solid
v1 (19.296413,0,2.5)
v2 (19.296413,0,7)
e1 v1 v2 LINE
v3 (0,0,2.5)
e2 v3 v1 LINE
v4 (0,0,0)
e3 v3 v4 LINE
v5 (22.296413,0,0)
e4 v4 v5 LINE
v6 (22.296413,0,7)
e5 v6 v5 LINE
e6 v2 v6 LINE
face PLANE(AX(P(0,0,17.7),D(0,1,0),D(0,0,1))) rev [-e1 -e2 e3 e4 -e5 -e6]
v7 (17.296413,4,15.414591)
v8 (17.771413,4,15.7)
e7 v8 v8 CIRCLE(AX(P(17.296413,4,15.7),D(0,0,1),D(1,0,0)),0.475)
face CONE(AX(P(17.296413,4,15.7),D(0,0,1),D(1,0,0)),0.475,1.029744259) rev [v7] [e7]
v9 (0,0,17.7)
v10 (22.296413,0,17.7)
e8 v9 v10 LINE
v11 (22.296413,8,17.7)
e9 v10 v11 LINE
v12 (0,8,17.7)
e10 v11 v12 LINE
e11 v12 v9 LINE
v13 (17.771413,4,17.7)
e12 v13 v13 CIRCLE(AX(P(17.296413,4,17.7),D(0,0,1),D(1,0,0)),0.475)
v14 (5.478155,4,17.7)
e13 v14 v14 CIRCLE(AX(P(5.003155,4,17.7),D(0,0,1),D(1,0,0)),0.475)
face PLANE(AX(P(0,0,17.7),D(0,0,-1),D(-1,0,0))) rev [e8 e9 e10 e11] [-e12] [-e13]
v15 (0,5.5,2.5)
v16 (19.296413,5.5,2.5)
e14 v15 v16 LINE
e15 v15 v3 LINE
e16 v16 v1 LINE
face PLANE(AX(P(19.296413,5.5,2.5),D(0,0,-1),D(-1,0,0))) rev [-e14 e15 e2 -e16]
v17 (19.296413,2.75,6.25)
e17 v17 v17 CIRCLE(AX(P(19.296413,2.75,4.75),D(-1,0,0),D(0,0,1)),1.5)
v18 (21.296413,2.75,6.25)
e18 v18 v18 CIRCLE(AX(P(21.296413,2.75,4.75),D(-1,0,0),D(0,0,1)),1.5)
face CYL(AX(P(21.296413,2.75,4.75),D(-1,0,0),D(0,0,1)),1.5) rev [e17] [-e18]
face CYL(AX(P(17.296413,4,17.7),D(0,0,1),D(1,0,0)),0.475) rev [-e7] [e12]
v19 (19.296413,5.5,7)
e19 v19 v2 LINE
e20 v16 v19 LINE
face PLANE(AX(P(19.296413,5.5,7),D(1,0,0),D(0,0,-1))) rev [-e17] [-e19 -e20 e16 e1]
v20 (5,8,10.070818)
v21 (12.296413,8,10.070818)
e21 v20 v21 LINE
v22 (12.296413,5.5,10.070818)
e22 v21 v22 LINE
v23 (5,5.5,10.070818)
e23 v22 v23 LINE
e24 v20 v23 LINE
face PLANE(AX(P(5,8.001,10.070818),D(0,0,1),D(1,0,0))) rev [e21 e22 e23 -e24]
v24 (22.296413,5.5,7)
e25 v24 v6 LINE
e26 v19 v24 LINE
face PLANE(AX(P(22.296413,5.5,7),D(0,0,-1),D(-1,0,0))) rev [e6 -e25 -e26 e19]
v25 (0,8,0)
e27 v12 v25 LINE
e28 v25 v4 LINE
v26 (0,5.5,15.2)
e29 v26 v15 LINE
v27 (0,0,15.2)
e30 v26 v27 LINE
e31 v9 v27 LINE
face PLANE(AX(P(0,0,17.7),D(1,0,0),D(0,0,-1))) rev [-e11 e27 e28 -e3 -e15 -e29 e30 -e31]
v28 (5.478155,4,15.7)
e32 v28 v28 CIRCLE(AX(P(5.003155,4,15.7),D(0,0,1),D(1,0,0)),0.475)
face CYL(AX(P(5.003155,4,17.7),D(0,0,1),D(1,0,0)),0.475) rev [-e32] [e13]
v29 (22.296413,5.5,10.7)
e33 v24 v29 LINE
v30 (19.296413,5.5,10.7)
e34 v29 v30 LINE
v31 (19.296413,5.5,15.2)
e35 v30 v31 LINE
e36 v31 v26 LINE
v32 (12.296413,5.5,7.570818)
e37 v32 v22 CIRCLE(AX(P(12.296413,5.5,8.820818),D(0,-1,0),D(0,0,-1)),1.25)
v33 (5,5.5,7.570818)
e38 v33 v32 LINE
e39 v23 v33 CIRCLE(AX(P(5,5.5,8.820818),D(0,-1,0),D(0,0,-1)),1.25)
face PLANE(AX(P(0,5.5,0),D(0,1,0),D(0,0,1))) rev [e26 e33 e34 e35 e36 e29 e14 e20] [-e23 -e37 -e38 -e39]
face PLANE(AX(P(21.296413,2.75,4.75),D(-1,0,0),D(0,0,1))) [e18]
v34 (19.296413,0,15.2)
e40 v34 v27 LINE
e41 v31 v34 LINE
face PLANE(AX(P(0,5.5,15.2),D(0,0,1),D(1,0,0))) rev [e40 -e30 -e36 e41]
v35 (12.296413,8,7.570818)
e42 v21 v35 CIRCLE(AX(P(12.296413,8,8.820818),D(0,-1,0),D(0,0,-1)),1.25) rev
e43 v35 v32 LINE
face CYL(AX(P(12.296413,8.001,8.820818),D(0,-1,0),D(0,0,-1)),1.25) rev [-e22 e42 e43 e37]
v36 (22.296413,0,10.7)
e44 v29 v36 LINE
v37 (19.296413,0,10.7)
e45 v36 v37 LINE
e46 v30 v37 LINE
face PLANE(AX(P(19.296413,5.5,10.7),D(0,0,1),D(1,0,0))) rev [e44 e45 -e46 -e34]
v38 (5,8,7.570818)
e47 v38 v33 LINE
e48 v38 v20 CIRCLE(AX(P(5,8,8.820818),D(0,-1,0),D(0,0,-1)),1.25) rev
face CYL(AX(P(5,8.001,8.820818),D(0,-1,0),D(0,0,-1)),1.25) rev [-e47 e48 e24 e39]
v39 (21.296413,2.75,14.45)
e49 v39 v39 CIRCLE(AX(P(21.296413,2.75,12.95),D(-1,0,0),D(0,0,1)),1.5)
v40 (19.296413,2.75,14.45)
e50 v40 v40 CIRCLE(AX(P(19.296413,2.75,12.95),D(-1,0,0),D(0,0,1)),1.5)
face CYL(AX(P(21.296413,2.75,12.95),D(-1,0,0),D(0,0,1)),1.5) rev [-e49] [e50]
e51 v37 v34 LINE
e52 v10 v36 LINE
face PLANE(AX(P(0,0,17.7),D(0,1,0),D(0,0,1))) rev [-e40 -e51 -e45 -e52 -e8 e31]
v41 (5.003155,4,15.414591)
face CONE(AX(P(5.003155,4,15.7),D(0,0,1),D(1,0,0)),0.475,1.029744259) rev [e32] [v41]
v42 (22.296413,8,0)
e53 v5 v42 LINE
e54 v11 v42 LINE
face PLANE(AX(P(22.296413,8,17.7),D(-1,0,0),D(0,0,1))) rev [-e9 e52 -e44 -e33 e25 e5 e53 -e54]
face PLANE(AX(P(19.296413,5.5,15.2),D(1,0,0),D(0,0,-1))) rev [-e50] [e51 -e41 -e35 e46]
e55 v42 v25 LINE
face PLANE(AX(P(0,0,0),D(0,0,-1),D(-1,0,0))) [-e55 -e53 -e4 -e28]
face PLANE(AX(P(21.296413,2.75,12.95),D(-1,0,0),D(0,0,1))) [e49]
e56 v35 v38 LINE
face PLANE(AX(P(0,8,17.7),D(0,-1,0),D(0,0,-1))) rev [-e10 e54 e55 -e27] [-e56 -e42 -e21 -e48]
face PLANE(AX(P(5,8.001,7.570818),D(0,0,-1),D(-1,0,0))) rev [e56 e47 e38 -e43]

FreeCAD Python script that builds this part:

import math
import FreeCAD as App
import Part
import Sketcher

doc = App.newDocument("Part")
params = doc.addObject("Spreadsheet::Sheet", "Params")
for row, (alias, value) in enumerate([
    ("sketch1_height", "8 mm"),
    ("pad1_length", "17.7 mm"),
    ("sketch2_width", "3 mm"),
    ("sketch2_height", "12.7 mm"),
    ("sketch2_height2", "4.5 mm"),
    ("pocket1_length", "5.5 mm"),
    ("sketch3_radius", "1.25 mm"),
    ("sketch4_diameter", "3 mm"),
    ("pocket3_length", "2 mm"),
    ("sketch5_diameter", "0.95 mm"),
    ("hole_diameter", "0.95 mm"),
    ("hole_depth", "2 mm"),
], start=1):
    params.set(f"A{row}", alias)
    params.set(f"B{row}", "=" + value)
    params.setAlias(f"B{row}", alias)

body = doc.addObject("PartDesign::Body", "Body")

# Sketch on XY plane
sketch1 = body.newObject("Sketcher::SketchObject", "Sketch")
sketch1.AttachmentSupport = (doc.getObject("XY_Plane"), [""])
sketch1.MapMode = "FlatFace"
sketch1.addGeometry([
    Part.LineSegment(App.Vector(0, 8, 0), App.Vector(0, 0, 0)),
    Part.LineSegment(App.Vector(0, 0, 0), App.Vector(22, 0, 0)),
    Part.LineSegment(App.Vector(22, 0, 0), App.Vector(22, 8, 0)),
    Part.LineSegment(App.Vector(22, 8, 0), App.Vector(0, 8, 0)),
], False)
sketch1.addConstraint([
    Sketcher.Constraint("Coincident", 0, 2, 1, 1),
    Sketcher.Constraint("Coincident", 1, 2, 2, 1),
    Sketcher.Constraint("Coincident", 2, 2, 3, 1),
    Sketcher.Constraint("Coincident", 3, 2, 0, 1),
    Sketcher.Constraint("Vertical", 0),
    Sketcher.Constraint("Horizontal", 1),
    Sketcher.Constraint("Vertical", 2),
    Sketcher.Constraint("Horizontal", 3),
    Sketcher.Constraint("Coincident", 0, 2, -1, 1),
    Sketcher.Constraint("DistanceY", 0, 2, 0, 1, 8.0),
    Sketcher.Constraint("DistanceX", 1, 1, 1, 2, 22.296413),
])
sketch1.setExpression("Constraints[9]", "Params.sketch1_height")
pad1 = body.newObject("PartDesign::Pad", "Pad")
pad1.Profile = sketch1
pad1.setExpression("Length", "Params.pad1_length")

# Sketch on XZ plane
sketch2 = body.newObject("Sketcher::SketchObject", "Sketch001")
sketch2.AttachmentSupport = (doc.getObject("XZ_Plane"), [""])
sketch2.MapMode = "FlatFace"
sketch2.addGeometry([
    Part.LineSegment(App.Vector(19.3, 15.2, 0), App.Vector(0, 15.2, 0)),  # 0
    Part.LineSegment(App.Vector(0, 15.2, 0), App.Vector(0, 2.5, 0)),  # 1
    Part.LineSegment(App.Vector(0, 2.5, 0), App.Vector(19.3, 2.5, 0)),  # 2
    Part.LineSegment(App.Vector(19.3, 2.5, 0), App.Vector(19.3, 7, 0)),  # 3
    Part.LineSegment(App.Vector(19.3, 7, 0), App.Vector(22.3, 7, 0)),  # 4
    Part.LineSegment(App.Vector(22.3, 7, 0), App.Vector(22.3, 10.7, 0)),  # 5
    Part.LineSegment(App.Vector(22.3, 10.7, 0), App.Vector(19.3, 10.7, 0)),  # 6
    Part.LineSegment(App.Vector(19.3, 10.7, 0), App.Vector(19.3, 15.2, 0)),  # 7
], False)
sketch2.addConstraint([
    Sketcher.Constraint("Coincident", 0, 2, 1, 1),
    Sketcher.Constraint("Coincident", 1, 2, 2, 1),
    Sketcher.Constraint("Coincident", 2, 2, 3, 1),
    Sketcher.Constraint("Coincident", 3, 2, 4, 1),
    Sketcher.Constraint("Coincident", 4, 2, 5, 1),
    Sketcher.Constraint("Coincident", 5, 2, 6, 1),
    Sketcher.Constraint("Coincident", 6, 2, 7, 1),
    Sketcher.Constraint("Coincident", 7, 2, 0, 1),
    Sketcher.Constraint("Horizontal", 0),
    Sketcher.Constraint("Vertical", 1),
    Sketcher.Constraint("Horizontal", 2),
    Sketcher.Constraint("Vertical", 3),
    Sketcher.Constraint("Horizontal", 4),
    Sketcher.Constraint("Vertical", 5),
    Sketcher.Constraint("Horizontal", 6),
    Sketcher.Constraint("Vertical", 7),
    Sketcher.Constraint("PointOnObject", 0, 2, -2),
    Sketcher.Constraint("Vertical", 3, 2, 6, 2),
    Sketcher.Constraint("Equal", 3, 7),
    Sketcher.Constraint("DistanceX", 4, 1, 4, 2, 3.0),
    Sketcher.Constraint("DistanceY", 1, 2, 1, 1, 12.7),
    Sketcher.Constraint("DistanceY", 3, 1, 3, 2, 4.5),
    Sketcher.Constraint("DistanceY", -1, 1, 3, 2, 7.0),
    Sketcher.Constraint("DistanceX", 0, 2, 0, 1, 19.296413),
])
sketch2.setExpression("Constraints[19]", "Params.sketch2_width")
sketch2.setExpression("Constraints[20]", "Params.sketch2_height")
sketch2.setExpression("Constraints[21]", "Params.sketch2_height2")
pocket1 = body.newObject("PartDesign::Pocket", "Pocket")
pocket1.Profile = sketch2
pocket1.setExpression("Length", "Params.pocket1_length")

# Sketch on XZ plane
sketch3 = body.newObject("Sketcher::SketchObject", "Sketch002")
sketch3.AttachmentSupport = (doc.getObject("XZ_Plane"), [""])
sketch3.MapMode = "FlatFace"
sketch3.AttachmentOffset = App.Placement(App.Vector(0, 0, -5.5), App.Rotation())
sketch3.addGeometry([
    Part.LineSegment(App.Vector(12.3, 10.1, 0), App.Vector(5, 10.1, 0)),
    Part.ArcOfCircle(Part.Circle(App.Vector(5, 8.8, 0), App.Vector(0, 0, 1), 1.2), math.radians(90), math.radians(270)),
    Part.LineSegment(App.Vector(5, 7.6, 0), App.Vector(12.3, 7.6, 0)),
    Part.ArcOfCircle(Part.Circle(App.Vector(12.3, 8.8, 0), App.Vector(0, 0, 1), 1.2), math.radians(-90), math.radians(90)),
], False)
sketch3.addConstraint([
    Sketcher.Constraint("Tangent", 0, 2, 1, 1),
    Sketcher.Constraint("Tangent", 1, 2, 2, 1),
    Sketcher.Constraint("Tangent", 2, 2, 3, 1),
    Sketcher.Constraint("Tangent", 3, 2, 0, 1),
    Sketcher.Constraint("Horizontal", 0),
    Sketcher.Constraint("Horizontal", 2),
    Sketcher.Constraint("Radius", 1, 1.25),
    Sketcher.Constraint("DistanceX", -1, 1, 1, 3, 5.0),
    Sketcher.Constraint("DistanceX", 0, 2, 0, 1, 7.296413),
    Sketcher.Constraint("DistanceY", -1, 1, 1, 3, 8.820818),
])
sketch3.setExpression("Constraints[6]", "Params.sketch3_radius")
pocket2 = body.newObject("PartDesign::Pocket", "Pocket001")
pocket2.Profile = sketch3
pocket2.Type = "UpToFirst"

# Sketch on YZ plane
sketch4 = body.newObject("Sketcher::SketchObject", "Sketch003")
sketch4.AttachmentSupport = (doc.getObject("YZ_Plane"), [""])
sketch4.MapMode = "FlatFace"
sketch4.AttachmentOffset = App.Placement(App.Vector(0, 0, 19.296413), App.Rotation())
sketch4.addGeometry([
    Part.Circle(App.Vector(2.8, 4.8, 0), App.Vector(0, 0, 1), 1.5),
    Part.Circle(App.Vector(2.8, 12.9, 0), App.Vector(0, 0, 1), 1.5),
], False)
sketch4.addConstraint([
    Sketcher.Constraint("Equal", 0, 1),
    Sketcher.Constraint("Vertical", 0, 3, 1, 3),
    Sketcher.Constraint("Diameter", 0, 3.0),
    Sketcher.Constraint("DistanceY", 0, 3, 1, 3, 8.2),
    Sketcher.Constraint("DistanceX", -1, 1, 0, 3, 2.75),
    Sketcher.Constraint("DistanceY", -1, 1, 0, 3, 4.75),
])
sketch4.setExpression("Constraints[2]", "Params.sketch4_diameter")
pocket3 = body.newObject("PartDesign::Pocket", "Pocket002")
pocket3.Profile = sketch4
pocket3.setExpression("Length", "Params.pocket3_length")
pocket3.Reversed = True

# Sketch on XY plane
sketch5 = body.newObject("Sketcher::SketchObject", "Sketch004")
sketch5.AttachmentSupport = (doc.getObject("XY_Plane"), [""])
sketch5.MapMode = "FlatFace"
sketch5.AttachmentOffset = App.Placement(App.Vector(0, 0, 17.7), App.Rotation())
sketch5.addGeometry([
    Part.Circle(App.Vector(17.3, 4, 0), App.Vector(0, 0, 1), 0.47),
    Part.Circle(App.Vector(5, 4, 0), App.Vector(0, 0, 1), 0.47),
], False)
sketch5.addConstraint([
    Sketcher.Constraint("Equal", 0, 1),
    Sketcher.Constraint("Horizontal", 0, 3, 1, 3),
    Sketcher.Constraint("Diameter", 0, 0.95),
    Sketcher.Constraint("DistanceY", -1, 1, 0, 3, 4.0),
    Sketcher.Constraint("DistanceX", 1, 3, 0, 3, 12.293258),
    Sketcher.Constraint("DistanceX", -1, 1, 0, 3, 17.296413),
])
sketch5.setExpression("Constraints[2]", "Params.sketch5_diameter")
doc.recompute()
hole = body.newObject("PartDesign::Hole", "Hole")
hole.Profile = sketch5
hole.ThreadType = "None"
hole.setExpression("Diameter", "Params.hole_diameter")
hole.DepthType = "Dimension"
hole.setExpression("Depth", "Params.hole_depth")
hole.DrillPoint = "Angled"
hole.DrillPointAngle = 118

doc.recompute()
